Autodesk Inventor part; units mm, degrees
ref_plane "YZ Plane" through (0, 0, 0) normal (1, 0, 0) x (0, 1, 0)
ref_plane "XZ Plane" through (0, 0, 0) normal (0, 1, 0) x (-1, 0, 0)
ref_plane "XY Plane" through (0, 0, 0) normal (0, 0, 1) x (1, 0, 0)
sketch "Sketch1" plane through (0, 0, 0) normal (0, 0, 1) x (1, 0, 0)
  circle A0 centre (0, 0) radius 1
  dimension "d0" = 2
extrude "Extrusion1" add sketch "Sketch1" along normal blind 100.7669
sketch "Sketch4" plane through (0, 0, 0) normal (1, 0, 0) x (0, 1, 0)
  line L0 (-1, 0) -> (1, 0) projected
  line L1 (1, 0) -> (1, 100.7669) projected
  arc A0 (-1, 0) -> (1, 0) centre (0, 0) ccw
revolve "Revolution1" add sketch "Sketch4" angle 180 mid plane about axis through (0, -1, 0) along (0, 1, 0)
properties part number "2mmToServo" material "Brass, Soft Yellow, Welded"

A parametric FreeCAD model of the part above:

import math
import FreeCAD as App
import Part
import Sketcher

doc = App.newDocument("Part")
body = doc.addObject("PartDesign::Body", "Body")

# Sketch on XY plane
sketch1 = body.newObject("Sketcher::SketchObject", "Sketch")
sketch1.AttachmentSupport = (doc.getObject("XY_Plane"), [""])
sketch1.MapMode = "FlatFace"
sketch1.addGeometry(Part.Circle(App.Vector(0, 0, 0), App.Vector(0, 0, 1), 1), False)
sketch1.addConstraint([
    Sketcher.Constraint("Coincident", 0, 3, -1, 1),
    Sketcher.Constraint("Diameter", 0, 2.0),
])
pad1 = body.newObject("PartDesign::Pad", "Pad")
pad1.Profile = sketch1
pad1.Length = 100.7669

# Sketch on YZ plane
sketch2 = body.newObject("Sketcher::SketchObject", "Sketch001")
sketch2.AttachmentSupport = (doc.getObject("YZ_Plane"), [""])
sketch2.MapMode = "FlatFace"
sketch2.addGeometry([
    Part.LineSegment(App.Vector(1, 0, 0), App.Vector(-1, 0, 0)),
    Part.ArcOfCircle(Part.Circle(App.Vector(0, 0, 0), App.Vector(0, 0, 1), 1), math.radians(180), math.radians(360)),
], False)
sketch2.addConstraint([
    Sketcher.Constraint("Coincident", 0, 1, 1, 2),
    Sketcher.Constraint("Coincident", 1, 1, 0, 2),
    Sketcher.Constraint("Horizontal", 0),
    Sketcher.Constraint("Coincident", 1, 3, -1, 1),
    Sketcher.Constraint("PointOnObject", 0, 1, -1),
    Sketcher.Constraint("Radius", 1, 1.0),
])
revolution = body.newObject("PartDesign::Revolution", "Revolution")
revolution.Profile = sketch2
revolution.ReferenceAxis = (sketch2, ["H_Axis"])
revolution.Angle = 180
revolution.Midplane = True

doc.recompute()
